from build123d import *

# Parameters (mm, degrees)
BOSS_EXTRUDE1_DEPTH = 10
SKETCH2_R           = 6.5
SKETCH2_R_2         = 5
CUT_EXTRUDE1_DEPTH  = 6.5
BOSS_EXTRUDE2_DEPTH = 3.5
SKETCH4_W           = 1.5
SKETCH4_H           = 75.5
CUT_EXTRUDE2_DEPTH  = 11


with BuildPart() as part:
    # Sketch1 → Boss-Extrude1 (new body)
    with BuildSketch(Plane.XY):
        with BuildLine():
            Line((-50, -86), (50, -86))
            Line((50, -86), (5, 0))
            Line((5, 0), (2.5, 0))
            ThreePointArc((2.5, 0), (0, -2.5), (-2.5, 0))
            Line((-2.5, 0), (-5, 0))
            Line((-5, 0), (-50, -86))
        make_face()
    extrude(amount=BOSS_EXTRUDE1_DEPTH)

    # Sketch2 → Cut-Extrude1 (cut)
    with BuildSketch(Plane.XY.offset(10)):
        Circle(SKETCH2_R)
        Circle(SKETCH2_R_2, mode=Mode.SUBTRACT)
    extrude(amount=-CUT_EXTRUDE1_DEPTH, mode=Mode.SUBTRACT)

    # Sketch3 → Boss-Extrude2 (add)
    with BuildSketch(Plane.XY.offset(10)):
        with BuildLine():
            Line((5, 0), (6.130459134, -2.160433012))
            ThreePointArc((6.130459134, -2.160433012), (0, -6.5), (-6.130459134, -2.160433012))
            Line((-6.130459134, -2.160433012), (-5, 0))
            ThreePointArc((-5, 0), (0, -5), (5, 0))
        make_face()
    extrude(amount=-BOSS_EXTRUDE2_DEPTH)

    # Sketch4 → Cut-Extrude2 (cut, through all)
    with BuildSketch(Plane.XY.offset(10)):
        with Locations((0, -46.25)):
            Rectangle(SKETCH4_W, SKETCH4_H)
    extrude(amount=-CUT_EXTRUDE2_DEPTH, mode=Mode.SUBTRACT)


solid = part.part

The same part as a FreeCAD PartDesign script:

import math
import FreeCAD as App
import Part
import Sketcher
from FreeCAD import Vector
Q = App.Units.Quantity

doc = App.newDocument("Part")
body = doc.addObject("PartDesign::Body", "Body")

sketch1 = doc.addObject("Sketcher::SketchObject", "Sketch")
body.addObject(sketch1)
sketch1.AttachmentSupport = (doc.XY_Plane, [""])
sketch1.MapMode = "FlatFace"
sketch1.addGeometry(Part.LineSegment(Vector(-50, -86, 0), Vector(50, -86, 0)), False)
sketch1.addGeometry(Part.LineSegment(Vector(50, -86, 0), Vector(5, 0, 0)), False)
sketch1.addGeometry(Part.LineSegment(Vector(5, 0, 0), Vector(2.5, 0, 0)), False)
sketch1.addGeometry(Part.ArcOfCircle(Part.Circle(Vector(0, 0, 0), Vector(0, 0, 1), 2.5), math.radians(180), math.radians(360)), False)
sketch1.addGeometry(Part.LineSegment(Vector(-2.5, 0, 0), Vector(-5, 0, 0)), False)
sketch1.addGeometry(Part.LineSegment(Vector(-5, 0, 0), Vector(-50, -86, 0)), False)
sketch1.addConstraint(Sketcher.Constraint("Coincident", 0, 2, 1, 1))
sketch1.addConstraint(Sketcher.Constraint("Coincident", 1, 2, 2, 1))
sketch1.addConstraint(Sketcher.Constraint("Coincident", 2, 2, 3, 2))
sketch1.addConstraint(Sketcher.Constraint("Coincident", 3, 1, 4, 1))
sketch1.addConstraint(Sketcher.Constraint("Coincident", 4, 2, 5, 1))
sketch1.addConstraint(Sketcher.Constraint("Coincident", 5, 2, 0, 1))
sketch1.addConstraint(Sketcher.Constraint("Horizontal", 0))
sketch1.addConstraint(Sketcher.Constraint("Horizontal", 2))
sketch1.addConstraint(Sketcher.Constraint("Horizontal", 4))
sketch1.addConstraint(Sketcher.Constraint("Coincident", 3, 3, -1, 1))
sketch1.addConstraint(Sketcher.Constraint("Symmetric", 1, 2, 4, 2, -1, 1))
sketch1.addConstraint(Sketcher.Constraint("PointOnObject", 1, 2, -1))
sketch1.addConstraint(Sketcher.Constraint("Equal", 1, 5))
sketch1.addConstraint(Sketcher.Constraint("Radius", 3, Q("2.5 mm")))
sketch1.addConstraint(Sketcher.Constraint("DistanceX", 0, 1, 0, 2, Q("100 mm")))
sketch1.addConstraint(Sketcher.Constraint("DistanceX", 2, 2, 2, 1, Q("2.5 mm")))
sketch1.addConstraint(Sketcher.Constraint("DistanceY", 0, 2, -1, 1, Q("86 mm")))
pad1 = doc.addObject("PartDesign::Pad", "Pad")
body.addObject(pad1)
pad1.Profile = sketch1
pad1.Length = 10

sketch2 = doc.addObject("Sketcher::SketchObject", "Sketch001")
body.addObject(sketch2)
sketch2.AttachmentSupport = (doc.XY_Plane, [""])
sketch2.MapMode = "FlatFace"
sketch2.AttachmentOffset = App.Placement(Vector(0, 0, 10), App.Rotation())
sketch2.addGeometry(Part.Circle(Vector(0, 0, 0), Vector(0, 0, 1), 6.5), False)
sketch2.addGeometry(Part.Circle(Vector(0, 0, 0), Vector(0, 0, 1), 5), False)
sketch2.addConstraint(Sketcher.Constraint("Coincident", 0, 3, -1, 1))
sketch2.addConstraint(Sketcher.Constraint("Coincident", 1, 3, -1, 1))
sketch2.addConstraint(Sketcher.Constraint("Diameter", 0, Q("13 mm")))
sketch2.addConstraint(Sketcher.Constraint("Diameter", 1, Q("10 mm")))
pocket1 = doc.addObject("PartDesign::Pocket", "Pocket")
body.addObject(pocket1)
pocket1.Profile = sketch2
pocket1.Length = 6.5

sketch3 = doc.addObject("Sketcher::SketchObject", "Sketch002")
body.addObject(sketch3)
sketch3.AttachmentSupport = (doc.XY_Plane, [""])
sketch3.MapMode = "FlatFace"
sketch3.AttachmentOffset = App.Placement(Vector(0, 0, 10), App.Rotation())
sketch3.addGeometry(Part.LineSegment(Vector(6.130459, -2.160433, 0), Vector(5, 0, 0)), False)
sketch3.addGeometry(Part.ArcOfCircle(Part.Circle(Vector(0, 0, 0), Vector(0, 0, 1), 5), math.radians(180), math.radians(360)), False)
sketch3.addGeometry(Part.LineSegment(Vector(-5, 0, 0), Vector(-6.130459, -2.160433, 0)), False)
sketch3.addGeometry(Part.ArcOfCircle(Part.Circle(Vector(0, 0, 0), Vector(0, 0, 1), 6.5), math.radians(-160.58705), math.radians(-19.41295)), False)
sketch3.addConstraint(Sketcher.Constraint("Coincident", 0, 2, 1, 2))
sketch3.addConstraint(Sketcher.Constraint("Coincident", 1, 1, 2, 1))
sketch3.addConstraint(Sketcher.Constraint("Coincident", 2, 2, 3, 1))
sketch3.addConstraint(Sketcher.Constraint("Coincident", 3, 2, 0, 1))
sketch3.addConstraint(Sketcher.Constraint("Coincident", 1, 3, -1, 1))
sketch3.addConstraint(Sketcher.Constraint("Coincident", 3, 3, -1, 1))
sketch3.addConstraint(Sketcher.Constraint("PointOnObject", 0, 2, -1))
sketch3.addConstraint(Sketcher.Constraint("PointOnObject", 1, 1, -1))
sketch3.addConstraint(Sketcher.Constraint("Horizontal", 2, 2, 3, 2))
sketch3.addConstraint(Sketcher.Constraint("Radius", 1, Q("5 mm")))
sketch3.addConstraint(Sketcher.Constraint("Radius", 3, Q("6.5 mm")))
sketch3.addConstraint(Sketcher.Constraint("Distance", 0, Q("2.438321 mm")))
pad2 = doc.addObject("PartDesign::Pad", "Pad001")
body.addObject(pad2)
pad2.Profile = sketch3
pad2.Length = 3.5
pad2.Reversed = True

sketch4 = doc.addObject("Sketcher::SketchObject", "Sketch003")
body.addObject(sketch4)
sketch4.AttachmentSupport = (doc.XY_Plane, [""])
sketch4.MapMode = "FlatFace"
sketch4.AttachmentOffset = App.Placement(Vector(0, 0, 10), App.Rotation())
sketch4.addGeometry(Part.LineSegment(Vector(-0.75, -8.5, 0), Vector(-0.75, -84, 0)), False)
sketch4.addGeometry(Part.LineSegment(Vector(-0.75, -84, 0), Vector(0.75, -84, 0)), False)
sketch4.addGeometry(Part.LineSegment(Vector(0.75, -84, 0), Vector(0.75, -8.5, 0)), False)
sketch4.addGeometry(Part.LineSegment(Vector(0.75, -8.5, 0), Vector(-0.75, -8.5, 0)), False)
sketch4.addConstraint(Sketcher.Constraint("Coincident", 0, 2, 1, 1))
sketch4.addConstraint(Sketcher.Constraint("Coincident", 1, 2, 2, 1))
sketch4.addConstraint(Sketcher.Constraint("Coincident", 2, 2, 3, 1))
sketch4.addConstraint(Sketcher.Constraint("Coincident", 3, 2, 0, 1))
sketch4.addConstraint(Sketcher.Constraint("Vertical", 0))
sketch4.addConstraint(Sketcher.Constraint("Horizontal", 1))
sketch4.addConstraint(Sketcher.Constraint("Vertical", 2))
sketch4.addConstraint(Sketcher.Constraint("Horizontal", 3))
sketch4.addConstraint(Sketcher.Constraint("DistanceX", 1, 1, 1, 2, Q("1.5 mm")))
sketch4.addConstraint(Sketcher.Constraint("DistanceY", 0, 2, 0, 1, Q("75.5 mm")))
sketch4.addConstraint(Sketcher.Constraint("DistanceY", 0, 2, -1, 1, Q("84 mm")))
sketch4.addConstraint(Sketcher.Constraint("DistanceX", 0, 2, -1, 1, Q("0.75 mm")))
pocket2 = doc.addObject("PartDesign::Pocket", "Pocket001")
body.addObject(pocket2)
pocket2.Profile = sketch4
pocket2.Type = "ThroughAll"

doc.recompute()
